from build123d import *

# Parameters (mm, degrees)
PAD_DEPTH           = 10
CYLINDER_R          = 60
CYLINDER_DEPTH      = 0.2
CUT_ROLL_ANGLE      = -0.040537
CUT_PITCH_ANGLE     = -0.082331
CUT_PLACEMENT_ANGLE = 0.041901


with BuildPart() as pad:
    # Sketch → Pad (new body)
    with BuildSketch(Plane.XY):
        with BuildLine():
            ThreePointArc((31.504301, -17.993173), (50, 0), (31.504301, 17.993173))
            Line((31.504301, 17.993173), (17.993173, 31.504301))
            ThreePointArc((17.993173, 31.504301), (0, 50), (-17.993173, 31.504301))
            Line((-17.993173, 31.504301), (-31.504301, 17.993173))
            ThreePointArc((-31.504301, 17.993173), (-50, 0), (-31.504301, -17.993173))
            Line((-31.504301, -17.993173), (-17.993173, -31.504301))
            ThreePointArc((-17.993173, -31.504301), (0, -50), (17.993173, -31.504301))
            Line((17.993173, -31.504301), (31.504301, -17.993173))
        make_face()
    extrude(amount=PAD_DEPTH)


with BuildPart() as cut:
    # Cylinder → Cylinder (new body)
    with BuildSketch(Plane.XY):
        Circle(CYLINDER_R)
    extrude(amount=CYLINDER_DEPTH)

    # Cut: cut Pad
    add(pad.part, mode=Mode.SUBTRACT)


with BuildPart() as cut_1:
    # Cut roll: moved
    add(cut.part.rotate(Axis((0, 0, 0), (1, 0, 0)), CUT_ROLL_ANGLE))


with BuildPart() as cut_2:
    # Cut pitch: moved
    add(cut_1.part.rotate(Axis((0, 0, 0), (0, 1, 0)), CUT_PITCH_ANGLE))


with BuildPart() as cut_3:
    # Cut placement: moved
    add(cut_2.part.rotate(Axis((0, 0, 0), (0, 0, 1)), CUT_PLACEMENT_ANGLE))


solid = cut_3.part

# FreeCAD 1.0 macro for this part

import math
import FreeCAD as App
import Part
import Sketcher
from FreeCAD import Vector
Q = App.Units.Quantity

doc = App.newDocument("Part")
body = doc.addObject("PartDesign::Body", "Body")

# Sketch on XY plane
sketch1 = body.newObject("Sketcher::SketchObject", "Sketch")
sketch1.AttachmentSupport = (doc.getObject("XY_Plane"), [""])
sketch1.MapMode = "FlatFace"
sketch1.addGeometry(Part.ArcOfCircle(Part.Circle(Vector(32, 0, 0), Vector(0, 0, 1), 18), math.radians(-91.578059), math.radians(91.578059)), False)
sketch1.addGeometry(Part.LineSegment(Vector(31.504301, 17.993173, 0), Vector(17.993173, 31.504301, 0)), False)
sketch1.addGeometry(Part.ArcOfCircle(Part.Circle(Vector(0, 32, 0), Vector(0, 0, 1), 18), math.radians(-1.578059), math.radians(181.578059)), False)
sketch1.addGeometry(Part.LineSegment(Vector(-17.993173, 31.504301, 0), Vector(-31.504301, 17.993173, 0)), False)
sketch1.addGeometry(Part.ArcOfCircle(Part.Circle(Vector(-32, 0, 0), Vector(0, 0, 1), 18), math.radians(88.421941), math.radians(271.578059)), False)
sketch1.addGeometry(Part.LineSegment(Vector(-31.504301, -17.993173, 0), Vector(-17.993173, -31.504301, 0)), False)
sketch1.addGeometry(Part.ArcOfCircle(Part.Circle(Vector(0, -32, 0), Vector(0, 0, 1), 18), math.radians(178.421941), math.radians(361.578059)), False)
sketch1.addGeometry(Part.LineSegment(Vector(17.993173, -31.504301, 0), Vector(31.504301, -17.993173, 0)), False)
sketch1.addConstraint(Sketcher.Constraint("Coincident", 0, 2, 1, 1))
sketch1.addConstraint(Sketcher.Constraint("Coincident", 1, 2, 2, 1))
sketch1.addConstraint(Sketcher.Constraint("Coincident", 2, 2, 3, 1))
sketch1.addConstraint(Sketcher.Constraint("Coincident", 3, 2, 4, 1))
sketch1.addConstraint(Sketcher.Constraint("Coincident", 4, 2, 5, 1))
sketch1.addConstraint(Sketcher.Constraint("Coincident", 5, 2, 6, 1))
sketch1.addConstraint(Sketcher.Constraint("Coincident", 6, 2, 7, 1))
sketch1.addConstraint(Sketcher.Constraint("Coincident", 7, 2, 0, 1))
sketch1.addConstraint(Sketcher.Constraint("Equal", 0, 2))
sketch1.addConstraint(Sketcher.Constraint("Equal", 2, 4))
sketch1.addConstraint(Sketcher.Constraint("Equal", 4, 6))
sketch1.addConstraint(Sketcher.Constraint("Symmetric", 0, 3, 4, 3, -1, 1))
sketch1.addConstraint(Sketcher.Constraint("Symmetric", 2, 3, 6, 3, -1, 1))
sketch1.addConstraint(Sketcher.Constraint("Symmetric", 1, 2, 2, 2, -2))
sketch1.addConstraint(Sketcher.Constraint("Symmetric", 0, 2, 3, 2, -2))
sketch1.addConstraint(Sketcher.Constraint("Perpendicular", 1, 3))
sketch1.addConstraint(Sketcher.Constraint("Perpendicular", 3, 5))
sketch1.addConstraint(Sketcher.Constraint("Perpendicular", 5, 7))
sketch1.addConstraint(Sketcher.Constraint("Horizontal", 5, 2, 6, 2))
sketch1.addConstraint(Sketcher.Constraint("Vertical", 3, 2, 4, 2))
sketch1.addConstraint(Sketcher.Constraint("Radius", 0, Q("18 mm")))
sketch1.addConstraint(Sketcher.Constraint("DistanceX", -1, 1, 0, 3, Q("32 mm")))
sketch1.addConstraint(Sketcher.Constraint("DistanceY", -1, 1, 2, 3, Q("32 mm")))
sketch1.addConstraint(Sketcher.Constraint("DistanceX", -1, 1, 0, 2, Q("31.504301 mm")))
pad1 = body.newObject("PartDesign::Pad", "Pad")
pad1.Profile = sketch1
pad1.Length = 10
body2 = doc.addObject("PartDesign::Body", "Body001")

# Sketch on XY plane
sketch2 = body2.newObject("Sketcher::SketchObject", "Sketch001")
sketch2.AttachmentSupport = (doc.getObject("XY_Plane001"), [""])
sketch2.MapMode = "FlatFace"
sketch2.addGeometry(Part.Circle(Vector(0, 0, 0), Vector(0, 0, 1), 60), False)
sketch2.addConstraint(Sketcher.Constraint("Coincident", 0, 3, -1, 1))
sketch2.addConstraint(Sketcher.Constraint("Diameter", 0, Q("120 mm")))
pad2 = body2.newObject("PartDesign::Pad", "Pad001")
pad2.Profile = sketch2
pad2.Length = 0.2
doc.recompute()

boolean = body2.newObject("PartDesign::Boolean", "Boolean")
boolean.Type = "Cut"
boolean.addObjects([body])
body3 = doc.addObject("PartDesign::Body", "Body002")
doc.recompute()

body2.Placement = App.Placement(Vector(0, 0, 0), App.Rotation(Vector(1, 0, 0), 359.959463))
boolean2 = body3.newObject("PartDesign::Boolean", "Boolean001")
boolean2.Type = "Fuse"
boolean2.addObjects([body2])
body4 = doc.addObject("PartDesign::Body", "Body003")
doc.recompute()

body3.Placement = App.Placement(Vector(0, 0, 0), App.Rotation(Vector(0, 1, 0), 359.917669))
boolean3 = body4.newObject("PartDesign::Boolean", "Boolean002")
boolean3.Type = "Fuse"
boolean3.addObjects([body3])
body5 = doc.addObject("PartDesign::Body", "Body004")
doc.recompute()

body4.Placement = App.Placement(Vector(0, 0, 0), App.Rotation(Vector(0, 0, 1), 0.041901))
boolean4 = body5.newObject("PartDesign::Boolean", "Boolean003")
boolean4.Type = "Fuse"
boolean4.addObjects([body4])

doc.recompute()
